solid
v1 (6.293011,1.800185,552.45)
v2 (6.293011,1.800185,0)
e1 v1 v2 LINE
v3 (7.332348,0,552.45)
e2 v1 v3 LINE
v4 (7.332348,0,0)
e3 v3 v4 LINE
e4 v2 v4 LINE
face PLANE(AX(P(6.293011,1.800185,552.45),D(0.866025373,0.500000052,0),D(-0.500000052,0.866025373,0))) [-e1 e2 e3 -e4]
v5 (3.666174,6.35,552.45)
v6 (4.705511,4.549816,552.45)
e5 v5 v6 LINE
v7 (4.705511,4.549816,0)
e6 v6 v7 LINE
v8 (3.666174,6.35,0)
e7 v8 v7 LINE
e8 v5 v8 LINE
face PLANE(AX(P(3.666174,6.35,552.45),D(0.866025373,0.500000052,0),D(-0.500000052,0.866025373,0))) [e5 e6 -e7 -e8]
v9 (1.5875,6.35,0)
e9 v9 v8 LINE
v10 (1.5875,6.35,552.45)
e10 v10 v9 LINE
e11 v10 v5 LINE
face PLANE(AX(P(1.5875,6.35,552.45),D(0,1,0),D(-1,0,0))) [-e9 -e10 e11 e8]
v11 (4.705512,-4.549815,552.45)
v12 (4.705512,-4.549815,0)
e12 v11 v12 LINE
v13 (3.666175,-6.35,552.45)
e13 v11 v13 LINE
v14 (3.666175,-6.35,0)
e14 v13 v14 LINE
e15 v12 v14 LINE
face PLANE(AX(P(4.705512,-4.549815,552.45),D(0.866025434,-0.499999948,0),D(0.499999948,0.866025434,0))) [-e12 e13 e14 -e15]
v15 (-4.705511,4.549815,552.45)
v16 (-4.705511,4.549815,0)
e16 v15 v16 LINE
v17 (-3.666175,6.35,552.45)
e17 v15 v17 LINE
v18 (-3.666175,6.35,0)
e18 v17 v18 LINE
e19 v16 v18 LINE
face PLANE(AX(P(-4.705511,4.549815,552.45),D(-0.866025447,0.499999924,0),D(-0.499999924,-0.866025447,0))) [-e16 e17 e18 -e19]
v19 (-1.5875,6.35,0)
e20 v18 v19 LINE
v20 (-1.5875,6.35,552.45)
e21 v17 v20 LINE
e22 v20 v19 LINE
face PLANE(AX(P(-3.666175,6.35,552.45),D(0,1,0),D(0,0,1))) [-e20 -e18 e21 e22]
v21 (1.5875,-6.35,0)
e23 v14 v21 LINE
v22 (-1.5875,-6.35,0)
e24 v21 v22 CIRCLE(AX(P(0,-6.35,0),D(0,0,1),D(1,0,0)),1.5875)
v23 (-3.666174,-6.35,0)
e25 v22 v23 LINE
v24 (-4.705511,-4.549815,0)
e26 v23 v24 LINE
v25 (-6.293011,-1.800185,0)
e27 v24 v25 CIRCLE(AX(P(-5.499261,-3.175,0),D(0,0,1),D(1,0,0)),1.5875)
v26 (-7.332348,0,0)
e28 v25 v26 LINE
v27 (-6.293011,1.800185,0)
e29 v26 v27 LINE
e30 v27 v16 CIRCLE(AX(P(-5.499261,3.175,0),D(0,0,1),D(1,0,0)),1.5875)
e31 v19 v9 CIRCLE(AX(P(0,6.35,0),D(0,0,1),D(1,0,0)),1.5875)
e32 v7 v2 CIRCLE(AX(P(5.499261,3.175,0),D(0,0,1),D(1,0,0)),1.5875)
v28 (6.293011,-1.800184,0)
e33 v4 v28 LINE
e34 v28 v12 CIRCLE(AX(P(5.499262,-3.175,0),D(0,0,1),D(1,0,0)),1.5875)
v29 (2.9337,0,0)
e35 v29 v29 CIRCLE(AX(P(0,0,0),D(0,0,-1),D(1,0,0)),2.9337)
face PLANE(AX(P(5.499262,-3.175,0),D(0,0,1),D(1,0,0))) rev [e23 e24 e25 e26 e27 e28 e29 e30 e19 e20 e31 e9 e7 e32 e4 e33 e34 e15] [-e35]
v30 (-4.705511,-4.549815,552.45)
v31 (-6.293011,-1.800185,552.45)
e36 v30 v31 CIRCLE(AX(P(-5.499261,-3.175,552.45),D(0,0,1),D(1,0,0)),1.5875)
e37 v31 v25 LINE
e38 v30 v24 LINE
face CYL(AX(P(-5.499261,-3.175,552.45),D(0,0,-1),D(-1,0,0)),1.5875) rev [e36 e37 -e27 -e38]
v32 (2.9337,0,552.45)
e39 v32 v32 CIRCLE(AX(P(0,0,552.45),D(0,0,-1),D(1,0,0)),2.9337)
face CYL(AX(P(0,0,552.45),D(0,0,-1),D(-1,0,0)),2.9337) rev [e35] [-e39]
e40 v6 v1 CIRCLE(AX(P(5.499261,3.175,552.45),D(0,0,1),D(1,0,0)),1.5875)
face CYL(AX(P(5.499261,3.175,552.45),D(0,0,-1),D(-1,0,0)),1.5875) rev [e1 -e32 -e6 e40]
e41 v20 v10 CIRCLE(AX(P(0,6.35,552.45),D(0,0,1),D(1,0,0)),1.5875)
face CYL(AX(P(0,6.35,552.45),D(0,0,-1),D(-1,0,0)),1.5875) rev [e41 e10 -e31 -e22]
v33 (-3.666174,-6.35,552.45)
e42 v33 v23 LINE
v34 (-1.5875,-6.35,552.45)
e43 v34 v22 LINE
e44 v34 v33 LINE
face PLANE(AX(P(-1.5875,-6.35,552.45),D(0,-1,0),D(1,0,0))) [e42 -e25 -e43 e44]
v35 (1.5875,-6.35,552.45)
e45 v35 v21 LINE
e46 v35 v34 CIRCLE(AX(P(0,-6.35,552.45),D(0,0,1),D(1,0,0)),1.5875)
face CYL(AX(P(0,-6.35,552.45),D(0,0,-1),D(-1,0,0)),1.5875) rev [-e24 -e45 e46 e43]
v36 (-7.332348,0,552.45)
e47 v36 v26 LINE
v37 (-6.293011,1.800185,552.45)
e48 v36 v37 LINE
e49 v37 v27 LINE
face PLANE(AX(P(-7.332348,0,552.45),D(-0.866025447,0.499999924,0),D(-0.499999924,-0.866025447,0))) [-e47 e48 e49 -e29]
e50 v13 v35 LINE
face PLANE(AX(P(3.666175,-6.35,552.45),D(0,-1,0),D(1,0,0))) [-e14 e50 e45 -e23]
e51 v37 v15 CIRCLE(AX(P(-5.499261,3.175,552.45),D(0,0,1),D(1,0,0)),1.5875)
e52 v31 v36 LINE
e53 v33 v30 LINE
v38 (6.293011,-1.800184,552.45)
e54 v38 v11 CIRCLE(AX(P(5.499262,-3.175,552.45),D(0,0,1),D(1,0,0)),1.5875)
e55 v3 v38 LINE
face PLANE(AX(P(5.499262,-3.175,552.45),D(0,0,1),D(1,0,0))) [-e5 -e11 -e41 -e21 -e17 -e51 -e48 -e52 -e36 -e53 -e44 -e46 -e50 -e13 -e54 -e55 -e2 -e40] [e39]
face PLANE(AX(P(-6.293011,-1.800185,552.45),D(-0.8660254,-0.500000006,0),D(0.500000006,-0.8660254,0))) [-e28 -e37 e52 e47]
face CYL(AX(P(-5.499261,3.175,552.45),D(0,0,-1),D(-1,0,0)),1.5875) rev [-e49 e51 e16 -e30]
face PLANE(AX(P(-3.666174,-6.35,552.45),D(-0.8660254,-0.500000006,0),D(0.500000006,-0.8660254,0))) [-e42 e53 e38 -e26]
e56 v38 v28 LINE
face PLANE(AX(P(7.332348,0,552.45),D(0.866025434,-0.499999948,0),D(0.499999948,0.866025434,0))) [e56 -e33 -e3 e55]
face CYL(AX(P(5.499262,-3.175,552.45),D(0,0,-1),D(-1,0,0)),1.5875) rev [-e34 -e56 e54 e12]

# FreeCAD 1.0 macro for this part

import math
import FreeCAD as App
import Part
import Sketcher

V = App.Vector
Q = App.Units.Quantity

doc = App.newDocument("Part")
body = doc.addObject("PartDesign::Body", "Body")

sketch1 = body.newObject("Sketcher::SketchObject", "Sketch")
sketch1.AttachmentSupport = (doc.getObject("XY_Plane"), [""])
sketch1.MapMode = "FlatFace"
sketch1.addGeometry(Part.LineSegment(V(4.7, -4.5, 0), V(3.7, -6.3, 0)), False)
sketch1.addGeometry(Part.LineSegment(V(3.7, -6.3, 0), V(1.6, -6.3, 0)), False)
sketch1.addGeometry(Part.ArcOfCircle(Part.Circle(V(0, -6.3, 0), V(0, 0, 1), 1.6), math.radians(0), math.radians(180)), False)
sketch1.addGeometry(Part.LineSegment(V(-1.6, -6.3, 0), V(-3.7, -6.3, 0)), False)
sketch1.addGeometry(Part.LineSegment(V(-3.7, -6.3, 0), V(-4.7, -4.5, 0)), False)
sketch1.addGeometry(Part.ArcOfCircle(Part.Circle(V(-5.5, -3.2, 0), V(0, 0, 1), 1.6), math.radians(-60), math.radians(120)), False)
sketch1.addGeometry(Part.LineSegment(V(-6.3, -1.8, 0), V(-7.3, 0, 0)), False)
sketch1.addGeometry(Part.LineSegment(V(-7.3, 0, 0), V(-6.3, 1.8, 0)), False)
sketch1.addGeometry(Part.ArcOfCircle(Part.Circle(V(-5.5, 3.2, 0), V(0, 0, 1), 1.6), math.radians(-120), math.radians(60)), False)
sketch1.addGeometry(Part.LineSegment(V(-4.7, 4.5, 0), V(-3.7, 6.4, 0)), False)
sketch1.addGeometry(Part.LineSegment(V(-3.7, 6.4, 0), V(-1.6, 6.4, 0)), False)
sketch1.addGeometry(Part.ArcOfCircle(Part.Circle(V(0, 6.4, 0), V(0, 0, 1), 1.6), math.radians(180), math.radians(360)), False)
sketch1.addGeometry(Part.LineSegment(V(1.6, 6.4, 0), V(3.7, 6.4, 0)), False)
sketch1.addGeometry(Part.LineSegment(V(3.7, 6.4, 0), V(4.7, 4.5, 0)), False)
sketch1.addGeometry(Part.ArcOfCircle(Part.Circle(V(5.5, 3.2, 0), V(0, 0, 1), 1.6), math.radians(120), math.radians(300)), False)
sketch1.addGeometry(Part.LineSegment(V(6.3, 1.8, 0), V(7.3, 0, 0)), False)
sketch1.addGeometry(Part.LineSegment(V(7.3, 0, 0), V(6.3, -1.8, 0)), False)
sketch1.addGeometry(Part.ArcOfCircle(Part.Circle(V(5.5, -3.2, 0), V(0, 0, 1), 1.6), math.radians(60), math.radians(240)), False)
sketch1.addGeometry(Part.Circle(V(0, 0, 0), V(0, 0, 1), 2.9), False)
sketch1.addConstraint(Sketcher.Constraint("Coincident", 0, 2, 1, 1))
sketch1.addConstraint(Sketcher.Constraint("Coincident", 1, 2, 2, 1))
sketch1.addConstraint(Sketcher.Constraint("Coincident", 2, 2, 3, 1))
sketch1.addConstraint(Sketcher.Constraint("Coincident", 3, 2, 4, 1))
sketch1.addConstraint(Sketcher.Constraint("Coincident", 4, 2, 5, 1))
sketch1.addConstraint(Sketcher.Constraint("Coincident", 5, 2, 6, 1))
sketch1.addConstraint(Sketcher.Constraint("Coincident", 6, 2, 7, 1))
sketch1.addConstraint(Sketcher.Constraint("Coincident", 7, 2, 8, 1))
sketch1.addConstraint(Sketcher.Constraint("Coincident", 8, 2, 9, 1))
sketch1.addConstraint(Sketcher.Constraint("Coincident", 9, 2, 10, 1))
sketch1.addConstraint(Sketcher.Constraint("Coincident", 10, 2, 11, 1))
sketch1.addConstraint(Sketcher.Constraint("Coincident", 11, 2, 12, 1))
sketch1.addConstraint(Sketcher.Constraint("Coincident", 12, 2, 13, 1))
sketch1.addConstraint(Sketcher.Constraint("Coincident", 13, 2, 14, 1))
sketch1.addConstraint(Sketcher.Constraint("Coincident", 14, 2, 15, 1))
sketch1.addConstraint(Sketcher.Constraint("Coincident", 15, 2, 16, 1))
sketch1.addConstraint(Sketcher.Constraint("Coincident", 16, 2, 17, 1))
sketch1.addConstraint(Sketcher.Constraint("Coincident", 17, 2, 0, 1))
sketch1.addConstraint(Sketcher.Constraint("Horizontal", 1))
sketch1.addConstraint(Sketcher.Constraint("Horizontal", 3))
sketch1.addConstraint(Sketcher.Constraint("Horizontal", 10))
sketch1.addConstraint(Sketcher.Constraint("Horizontal", 12))
sketch1.addConstraint(Sketcher.Constraint("Coincident", 18, 3, -1, 1))
sketch1.addConstraint(Sketcher.Constraint("Equal", 2, 5))
sketch1.addConstraint(Sketcher.Constraint("Equal", 5, 8))
sketch1.addConstraint(Sketcher.Constraint("Equal", 8, 11))
sketch1.addConstraint(Sketcher.Constraint("Equal", 11, 14))
sketch1.addConstraint(Sketcher.Constraint("Equal", 14, 17))
sketch1.addConstraint(Sketcher.Constraint("Symmetric", 2, 3, 11, 3, -1, 1))
sketch1.addConstraint(Sketcher.Constraint("Symmetric", 5, 3, 14, 3, -1, 1))
sketch1.addConstraint(Sketcher.Constraint("Symmetric", 8, 3, 17, 3, -1, 1))
sketch1.addConstraint(Sketcher.Constraint("Symmetric", 0, 2, 9, 2, -1, 1))
sketch1.addConstraint(Sketcher.Constraint("Symmetric", 3, 2, 12, 2, -1, 1))
sketch1.addConstraint(Sketcher.Constraint("Symmetric", 6, 2, 15, 2, -1, 1))
sketch1.addConstraint(Sketcher.Constraint("Symmetric", 8, 3, 14, 3, -2))
sketch1.addConstraint(Sketcher.Constraint("Symmetric", 1, 2, 2, 2, -2))
sketch1.addConstraint(Sketcher.Constraint("PointOnObject", 6, 2, -1))
sketch1.addConstraint(Sketcher.Constraint("Parallel", 4, 6))
sketch1.addConstraint(Sketcher.Constraint("Parallel", 0, 7))
sketch1.addConstraint(Sketcher.Constraint("Parallel", 7, 9))
sketch1.addConstraint(Sketcher.Constraint("Parallel", 6, 13))
sketch1.addConstraint(Sketcher.Constraint("Parallel", 13, 15))
sketch1.addConstraint(Sketcher.Constraint("Parallel", 9, 16))
sketch1.addConstraint(Sketcher.Constraint("Horizontal", 2, 3, 0, 2))
sketch1.addConstraint(Sketcher.Constraint("Horizontal", 8, 2, 13, 2))
sketch1.addConstraint(Sketcher.Constraint("Horizontal", 7, 2, 14, 2))
sketch1.addConstraint(Sketcher.Constraint("Equal", 4, 6))
sketch1.addConstraint(Sketcher.Constraint("Diameter", 18, Q("0.231 in")))
sketch1.addConstraint(Sketcher.Constraint("Angle", 0, Q("-119.999997 deg")))
sketch1.addConstraint(Sketcher.Constraint("Radius", 2, Q("0.0625 in")))
sketch1.addConstraint(Sketcher.Constraint("DistanceY", 2, 3, 11, 3, Q("0.5 in")))
sketch1.addConstraint(Sketcher.Constraint("DistanceY", 5, 3, 8, 3, Q("0.25 in")))
sketch1.addConstraint(Sketcher.Constraint("DistanceX", 5, 3, 4, 2, Q("0.03125 in")))
sketch1.addConstraint(Sketcher.Constraint("DistanceX", 1, 2, 1, 1, Q("2.078674 mm")))
pad1 = body.newObject("PartDesign::Pad", "Pad")
pad1.Profile = sketch1
pad1.Length = Q("21.75 in")

doc.recompute()
